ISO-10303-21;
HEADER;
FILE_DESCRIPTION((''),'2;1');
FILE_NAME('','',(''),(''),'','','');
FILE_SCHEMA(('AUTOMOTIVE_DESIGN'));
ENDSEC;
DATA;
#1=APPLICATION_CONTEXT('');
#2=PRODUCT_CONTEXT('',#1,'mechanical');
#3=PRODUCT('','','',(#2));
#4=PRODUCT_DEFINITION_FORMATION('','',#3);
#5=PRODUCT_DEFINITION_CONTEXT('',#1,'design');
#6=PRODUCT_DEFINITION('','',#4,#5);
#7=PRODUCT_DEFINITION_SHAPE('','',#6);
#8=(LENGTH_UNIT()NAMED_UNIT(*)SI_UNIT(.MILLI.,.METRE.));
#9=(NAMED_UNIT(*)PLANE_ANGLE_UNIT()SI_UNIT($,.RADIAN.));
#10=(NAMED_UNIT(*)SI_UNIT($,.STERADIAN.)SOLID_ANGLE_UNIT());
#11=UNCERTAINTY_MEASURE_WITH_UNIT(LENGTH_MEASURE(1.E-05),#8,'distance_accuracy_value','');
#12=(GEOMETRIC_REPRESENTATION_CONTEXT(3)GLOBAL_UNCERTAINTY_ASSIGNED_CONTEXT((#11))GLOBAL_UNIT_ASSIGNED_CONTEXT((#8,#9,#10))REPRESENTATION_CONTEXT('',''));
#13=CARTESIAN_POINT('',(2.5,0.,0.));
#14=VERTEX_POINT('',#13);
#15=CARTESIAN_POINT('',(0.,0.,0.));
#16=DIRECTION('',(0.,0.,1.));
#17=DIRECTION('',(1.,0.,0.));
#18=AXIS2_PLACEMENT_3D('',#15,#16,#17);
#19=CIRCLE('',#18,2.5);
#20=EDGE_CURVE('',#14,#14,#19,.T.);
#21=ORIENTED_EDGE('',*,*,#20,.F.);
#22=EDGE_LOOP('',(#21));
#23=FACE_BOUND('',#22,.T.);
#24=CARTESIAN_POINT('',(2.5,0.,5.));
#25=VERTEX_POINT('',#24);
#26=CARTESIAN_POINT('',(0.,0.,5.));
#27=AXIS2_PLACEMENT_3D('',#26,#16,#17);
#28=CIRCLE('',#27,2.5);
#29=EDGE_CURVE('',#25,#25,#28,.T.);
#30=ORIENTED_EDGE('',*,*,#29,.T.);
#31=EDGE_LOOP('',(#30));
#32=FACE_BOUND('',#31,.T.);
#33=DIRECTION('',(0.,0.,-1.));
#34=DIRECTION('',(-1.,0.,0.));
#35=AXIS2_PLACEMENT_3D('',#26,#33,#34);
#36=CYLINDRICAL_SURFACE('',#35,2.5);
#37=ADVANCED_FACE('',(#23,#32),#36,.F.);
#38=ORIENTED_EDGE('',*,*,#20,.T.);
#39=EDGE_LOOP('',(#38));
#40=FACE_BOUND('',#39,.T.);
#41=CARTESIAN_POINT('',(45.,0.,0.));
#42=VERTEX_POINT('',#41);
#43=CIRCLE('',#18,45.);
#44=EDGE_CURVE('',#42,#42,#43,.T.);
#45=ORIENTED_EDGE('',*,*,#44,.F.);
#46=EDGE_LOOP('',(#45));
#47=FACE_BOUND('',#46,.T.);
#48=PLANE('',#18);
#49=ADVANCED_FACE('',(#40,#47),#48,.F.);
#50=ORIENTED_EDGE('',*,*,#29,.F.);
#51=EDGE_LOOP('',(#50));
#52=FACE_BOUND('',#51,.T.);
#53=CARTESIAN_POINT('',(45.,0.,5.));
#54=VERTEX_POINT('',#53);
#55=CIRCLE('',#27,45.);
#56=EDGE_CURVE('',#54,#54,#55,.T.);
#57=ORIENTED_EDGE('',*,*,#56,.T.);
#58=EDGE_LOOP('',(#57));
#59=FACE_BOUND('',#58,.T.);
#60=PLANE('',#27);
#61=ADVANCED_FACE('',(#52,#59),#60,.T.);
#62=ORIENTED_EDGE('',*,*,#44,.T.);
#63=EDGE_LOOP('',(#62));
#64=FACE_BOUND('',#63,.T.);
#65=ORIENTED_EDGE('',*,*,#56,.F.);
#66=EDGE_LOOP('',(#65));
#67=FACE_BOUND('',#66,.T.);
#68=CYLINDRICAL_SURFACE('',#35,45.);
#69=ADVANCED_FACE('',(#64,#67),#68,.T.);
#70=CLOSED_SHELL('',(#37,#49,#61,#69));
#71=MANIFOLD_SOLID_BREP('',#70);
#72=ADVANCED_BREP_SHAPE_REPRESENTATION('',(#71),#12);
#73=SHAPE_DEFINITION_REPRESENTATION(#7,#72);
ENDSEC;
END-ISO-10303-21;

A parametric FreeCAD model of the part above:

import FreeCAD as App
import Part
import Sketcher
from FreeCAD import Vector

doc = App.newDocument("Part")
body = doc.addObject("PartDesign::Body", "Body")

sketch1 = body.newObject("Sketcher::SketchObject", "Sketch")
sketch1.AttachmentSupport = (doc.getObject("XY_Plane"), [""])
sketch1.MapMode = "FlatFace"
sketch1.addGeometry([
    Part.Circle(Vector(0, 0, 0), Vector(0, 0, 1), 45),
    Part.Circle(Vector(0, 0, 0), Vector(0, 0, 1), 2.5),
], False)
sketch1.addConstraint([
    Sketcher.Constraint("Coincident", 0, 3, -1, 1),
    Sketcher.Constraint("Coincident", 1, 3, -1, 1),
    Sketcher.Constraint("Diameter", 0, 90.0),
    Sketcher.Constraint("Diameter", 1, 5.0),
])
pad1 = body.newObject("PartDesign::Pad", "Pad")
pad1.Profile = sketch1
pad1.Length = 5

doc.recompute()
